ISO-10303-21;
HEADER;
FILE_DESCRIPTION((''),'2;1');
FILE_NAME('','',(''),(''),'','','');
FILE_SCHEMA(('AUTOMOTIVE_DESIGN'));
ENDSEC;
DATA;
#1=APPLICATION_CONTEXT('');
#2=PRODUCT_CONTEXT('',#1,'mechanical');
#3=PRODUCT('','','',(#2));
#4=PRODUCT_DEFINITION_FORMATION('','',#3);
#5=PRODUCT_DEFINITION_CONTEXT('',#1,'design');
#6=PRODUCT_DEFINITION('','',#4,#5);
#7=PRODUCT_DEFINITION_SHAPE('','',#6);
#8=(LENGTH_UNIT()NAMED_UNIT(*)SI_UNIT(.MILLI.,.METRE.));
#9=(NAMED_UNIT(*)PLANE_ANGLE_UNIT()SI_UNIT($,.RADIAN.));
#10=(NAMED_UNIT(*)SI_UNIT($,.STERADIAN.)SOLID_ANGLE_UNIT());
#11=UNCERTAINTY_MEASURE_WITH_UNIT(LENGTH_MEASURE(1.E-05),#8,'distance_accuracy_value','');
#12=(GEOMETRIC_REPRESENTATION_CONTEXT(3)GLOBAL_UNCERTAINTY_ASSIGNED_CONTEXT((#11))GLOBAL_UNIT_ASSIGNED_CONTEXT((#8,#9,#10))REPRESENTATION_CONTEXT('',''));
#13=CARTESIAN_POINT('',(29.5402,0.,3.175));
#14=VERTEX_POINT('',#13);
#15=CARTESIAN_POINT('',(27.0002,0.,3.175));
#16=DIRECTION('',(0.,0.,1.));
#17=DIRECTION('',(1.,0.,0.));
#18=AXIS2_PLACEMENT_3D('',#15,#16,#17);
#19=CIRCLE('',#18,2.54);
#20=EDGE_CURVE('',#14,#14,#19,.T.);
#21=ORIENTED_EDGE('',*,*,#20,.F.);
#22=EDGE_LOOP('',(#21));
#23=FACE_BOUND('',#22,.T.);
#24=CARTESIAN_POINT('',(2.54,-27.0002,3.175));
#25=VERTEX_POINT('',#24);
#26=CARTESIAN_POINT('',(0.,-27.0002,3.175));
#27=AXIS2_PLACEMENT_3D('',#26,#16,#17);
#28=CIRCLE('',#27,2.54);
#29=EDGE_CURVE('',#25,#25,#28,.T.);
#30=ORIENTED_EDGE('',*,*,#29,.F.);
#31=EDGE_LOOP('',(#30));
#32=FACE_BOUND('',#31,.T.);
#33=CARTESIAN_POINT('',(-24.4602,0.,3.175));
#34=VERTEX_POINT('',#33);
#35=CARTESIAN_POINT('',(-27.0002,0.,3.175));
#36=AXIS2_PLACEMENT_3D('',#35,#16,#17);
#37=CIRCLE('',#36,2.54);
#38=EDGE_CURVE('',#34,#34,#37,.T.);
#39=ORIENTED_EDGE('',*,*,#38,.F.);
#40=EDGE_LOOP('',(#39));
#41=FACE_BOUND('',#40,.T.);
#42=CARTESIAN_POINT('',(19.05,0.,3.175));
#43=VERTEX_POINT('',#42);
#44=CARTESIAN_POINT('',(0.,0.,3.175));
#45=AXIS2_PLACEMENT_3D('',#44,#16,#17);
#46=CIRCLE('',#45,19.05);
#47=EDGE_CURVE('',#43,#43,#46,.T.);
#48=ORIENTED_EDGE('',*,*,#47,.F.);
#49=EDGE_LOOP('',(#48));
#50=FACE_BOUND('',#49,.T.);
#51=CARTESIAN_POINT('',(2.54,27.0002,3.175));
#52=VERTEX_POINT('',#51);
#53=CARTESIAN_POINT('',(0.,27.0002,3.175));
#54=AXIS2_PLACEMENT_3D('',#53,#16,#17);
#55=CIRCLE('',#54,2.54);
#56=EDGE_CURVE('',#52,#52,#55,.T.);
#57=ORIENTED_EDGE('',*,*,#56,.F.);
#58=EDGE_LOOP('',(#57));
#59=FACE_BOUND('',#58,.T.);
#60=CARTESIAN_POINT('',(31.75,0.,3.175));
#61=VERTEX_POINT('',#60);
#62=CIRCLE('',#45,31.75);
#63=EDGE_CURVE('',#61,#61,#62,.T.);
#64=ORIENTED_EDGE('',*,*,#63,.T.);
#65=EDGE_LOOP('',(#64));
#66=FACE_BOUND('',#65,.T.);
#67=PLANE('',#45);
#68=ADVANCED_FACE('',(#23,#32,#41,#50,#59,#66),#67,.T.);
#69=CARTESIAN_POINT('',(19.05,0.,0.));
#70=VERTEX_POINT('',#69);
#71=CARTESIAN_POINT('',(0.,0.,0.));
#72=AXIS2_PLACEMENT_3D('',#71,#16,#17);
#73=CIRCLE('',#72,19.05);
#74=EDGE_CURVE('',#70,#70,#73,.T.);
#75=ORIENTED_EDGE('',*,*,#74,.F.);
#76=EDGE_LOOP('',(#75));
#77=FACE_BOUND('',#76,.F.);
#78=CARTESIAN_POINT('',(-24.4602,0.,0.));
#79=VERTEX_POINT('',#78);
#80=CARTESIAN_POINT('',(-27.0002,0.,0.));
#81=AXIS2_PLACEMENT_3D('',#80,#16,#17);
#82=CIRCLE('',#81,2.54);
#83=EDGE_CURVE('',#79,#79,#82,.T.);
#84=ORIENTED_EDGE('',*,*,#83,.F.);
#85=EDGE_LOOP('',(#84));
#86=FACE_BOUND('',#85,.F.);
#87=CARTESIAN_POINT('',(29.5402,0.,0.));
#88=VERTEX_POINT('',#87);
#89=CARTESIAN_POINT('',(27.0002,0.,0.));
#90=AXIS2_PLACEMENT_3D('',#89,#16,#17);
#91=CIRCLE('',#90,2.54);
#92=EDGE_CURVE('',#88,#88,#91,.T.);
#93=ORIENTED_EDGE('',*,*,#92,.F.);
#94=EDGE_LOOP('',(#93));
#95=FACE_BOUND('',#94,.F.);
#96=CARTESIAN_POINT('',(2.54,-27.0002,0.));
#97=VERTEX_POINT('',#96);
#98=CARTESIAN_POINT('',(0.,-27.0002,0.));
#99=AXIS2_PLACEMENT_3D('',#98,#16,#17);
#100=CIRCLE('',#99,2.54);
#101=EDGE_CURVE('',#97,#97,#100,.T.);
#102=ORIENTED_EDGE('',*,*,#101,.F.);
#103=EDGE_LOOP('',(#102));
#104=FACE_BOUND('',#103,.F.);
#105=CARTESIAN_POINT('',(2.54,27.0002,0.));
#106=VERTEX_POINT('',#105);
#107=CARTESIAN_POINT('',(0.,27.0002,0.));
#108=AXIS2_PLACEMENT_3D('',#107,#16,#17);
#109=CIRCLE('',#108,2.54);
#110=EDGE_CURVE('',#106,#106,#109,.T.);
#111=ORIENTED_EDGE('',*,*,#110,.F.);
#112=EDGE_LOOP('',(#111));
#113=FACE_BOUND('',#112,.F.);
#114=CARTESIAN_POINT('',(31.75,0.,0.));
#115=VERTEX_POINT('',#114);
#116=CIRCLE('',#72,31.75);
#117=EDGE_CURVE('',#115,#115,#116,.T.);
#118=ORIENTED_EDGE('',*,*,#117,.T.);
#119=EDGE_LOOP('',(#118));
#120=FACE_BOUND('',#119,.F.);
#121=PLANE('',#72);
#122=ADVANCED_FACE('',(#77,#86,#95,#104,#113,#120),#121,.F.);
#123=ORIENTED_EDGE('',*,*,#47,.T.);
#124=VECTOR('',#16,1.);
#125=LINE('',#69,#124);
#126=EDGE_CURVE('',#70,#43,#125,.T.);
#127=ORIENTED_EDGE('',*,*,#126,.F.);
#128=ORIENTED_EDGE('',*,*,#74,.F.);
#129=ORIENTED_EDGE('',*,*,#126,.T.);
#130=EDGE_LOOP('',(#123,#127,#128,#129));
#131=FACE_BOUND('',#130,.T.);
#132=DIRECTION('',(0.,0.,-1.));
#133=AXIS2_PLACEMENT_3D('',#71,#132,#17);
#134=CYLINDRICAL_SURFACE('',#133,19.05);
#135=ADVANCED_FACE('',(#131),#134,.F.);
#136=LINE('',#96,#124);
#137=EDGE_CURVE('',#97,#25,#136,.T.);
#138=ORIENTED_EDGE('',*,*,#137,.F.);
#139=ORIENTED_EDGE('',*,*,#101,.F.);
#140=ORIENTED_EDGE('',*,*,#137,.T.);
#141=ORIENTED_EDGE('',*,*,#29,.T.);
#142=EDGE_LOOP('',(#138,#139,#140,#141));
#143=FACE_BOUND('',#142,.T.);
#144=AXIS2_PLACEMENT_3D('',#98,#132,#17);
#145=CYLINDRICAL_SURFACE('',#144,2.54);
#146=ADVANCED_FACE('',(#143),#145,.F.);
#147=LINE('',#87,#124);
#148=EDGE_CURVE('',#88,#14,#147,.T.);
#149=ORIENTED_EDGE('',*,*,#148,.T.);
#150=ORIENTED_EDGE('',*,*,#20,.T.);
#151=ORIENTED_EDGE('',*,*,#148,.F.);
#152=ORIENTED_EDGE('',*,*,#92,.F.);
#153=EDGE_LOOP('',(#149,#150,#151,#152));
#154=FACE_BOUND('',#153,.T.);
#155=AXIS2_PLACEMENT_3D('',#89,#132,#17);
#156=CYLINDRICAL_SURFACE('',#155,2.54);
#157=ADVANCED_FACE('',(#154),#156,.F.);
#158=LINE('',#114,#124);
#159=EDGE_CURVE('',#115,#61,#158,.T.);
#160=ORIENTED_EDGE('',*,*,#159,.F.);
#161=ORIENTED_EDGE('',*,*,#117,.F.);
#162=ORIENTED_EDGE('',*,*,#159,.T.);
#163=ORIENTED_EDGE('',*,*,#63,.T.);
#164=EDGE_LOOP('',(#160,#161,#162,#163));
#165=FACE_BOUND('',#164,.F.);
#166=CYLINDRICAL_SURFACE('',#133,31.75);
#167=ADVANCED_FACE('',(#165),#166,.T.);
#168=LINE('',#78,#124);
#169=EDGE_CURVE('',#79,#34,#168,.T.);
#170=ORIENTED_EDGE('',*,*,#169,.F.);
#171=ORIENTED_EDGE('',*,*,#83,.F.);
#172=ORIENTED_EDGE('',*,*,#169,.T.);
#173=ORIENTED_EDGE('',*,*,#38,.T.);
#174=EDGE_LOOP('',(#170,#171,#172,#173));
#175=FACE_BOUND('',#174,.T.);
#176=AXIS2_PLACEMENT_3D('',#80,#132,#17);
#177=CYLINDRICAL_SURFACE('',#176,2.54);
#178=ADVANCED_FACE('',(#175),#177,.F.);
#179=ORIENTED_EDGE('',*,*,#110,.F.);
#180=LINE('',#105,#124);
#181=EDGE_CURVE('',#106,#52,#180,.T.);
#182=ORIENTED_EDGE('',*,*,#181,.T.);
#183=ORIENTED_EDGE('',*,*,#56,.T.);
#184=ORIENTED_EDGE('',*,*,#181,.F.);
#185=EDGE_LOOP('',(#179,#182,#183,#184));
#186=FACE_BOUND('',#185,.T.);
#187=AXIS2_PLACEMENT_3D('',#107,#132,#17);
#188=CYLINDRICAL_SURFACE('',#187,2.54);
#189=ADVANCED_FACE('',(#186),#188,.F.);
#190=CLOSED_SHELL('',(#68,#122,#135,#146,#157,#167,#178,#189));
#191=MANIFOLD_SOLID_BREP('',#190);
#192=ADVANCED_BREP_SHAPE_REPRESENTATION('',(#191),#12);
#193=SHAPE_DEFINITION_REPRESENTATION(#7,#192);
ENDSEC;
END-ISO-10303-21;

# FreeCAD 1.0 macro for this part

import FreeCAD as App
import Part
import Sketcher

V = App.Vector
Q = App.Units.Quantity

doc = App.newDocument("Part")
params = doc.addObject("Spreadsheet::Sheet", "Params")
for row, (alias, value) in enumerate([
    ("sketch1_diameter", "2.5 in"),
    ("sketch1_diameter2", "0.2 in"),
    ("sketch1_diameter3", "1.5 in"),
    ("pad1_length", "0.125 in"),
], start=1):
    params.set(f"A{row}", alias)
    params.set(f"B{row}", "=" + value)
    params.setAlias(f"B{row}", alias)

body = doc.addObject("PartDesign::Body", "Body")

# Sketch on XY plane
sketch1 = body.newObject("Sketcher::SketchObject", "Sketch")
sketch1.AttachmentSupport = (doc.getObject("XY_Plane"), [""])
sketch1.MapMode = "FlatFace"
sketch1.addGeometry(Part.Circle(V(0, 0, 0), V(0, 0, 1), 31.8), False)
sketch1.addGeometry(Part.Circle(V(0, -27, 0), V(0, 0, 1), 2.5), False)
sketch1.addGeometry(Part.Circle(V(-27, 0, 0), V(0, 0, 1), 2.5), False)
sketch1.addGeometry(Part.Circle(V(0, 0, 0), V(0, 0, 1), 19.1), False)
sketch1.addGeometry(Part.Circle(V(27, 0, 0), V(0, 0, 1), 2.5), False)
sketch1.addGeometry(Part.Circle(V(0, 27, 0), V(0, 0, 1), 2.5), False)
sketch1.addConstraint(Sketcher.Constraint("Coincident", 0, 3, -1, 1))
sketch1.addConstraint(Sketcher.Constraint("Coincident", 3, 3, -1, 1))
sketch1.addConstraint(Sketcher.Constraint("Equal", 1, 2))
sketch1.addConstraint(Sketcher.Constraint("Equal", 2, 4))
sketch1.addConstraint(Sketcher.Constraint("Equal", 4, 5))
sketch1.addConstraint(Sketcher.Constraint("Symmetric", 2, 3, 4, 3, -1, 1))
sketch1.addConstraint(Sketcher.Constraint("Symmetric", 1, 3, 5, 3, -1, 1))
sketch1.addConstraint(Sketcher.Constraint("PointOnObject", 1, 3, -2))
sketch1.addConstraint(Sketcher.Constraint("PointOnObject", 2, 3, -1))
sketch1.addConstraint(Sketcher.Constraint("Diameter", 0, Q("2.5 in")))
sketch1.addConstraint(Sketcher.Constraint("Diameter", 1, Q("0.2 in")))
sketch1.addConstraint(Sketcher.Constraint("Diameter", 3, Q("1.5 in")))
sketch1.addConstraint(Sketcher.Constraint("DistanceY", 1, 3, -1, 1, Q("1.063 in")))
sketch1.addConstraint(Sketcher.Constraint("DistanceX", 2, 3, -1, 1, Q("1.063 in")))
sketch1.setExpression("Constraints[9]", "Params.sketch1_diameter")
sketch1.setExpression("Constraints[10]", "Params.sketch1_diameter2")
sketch1.setExpression("Constraints[11]", "Params.sketch1_diameter3")
pad1 = body.newObject("PartDesign::Pad", "Pad")
pad1.Profile = sketch1
pad1.setExpression("Length", "Params.pad1_length")

doc.recompute()
